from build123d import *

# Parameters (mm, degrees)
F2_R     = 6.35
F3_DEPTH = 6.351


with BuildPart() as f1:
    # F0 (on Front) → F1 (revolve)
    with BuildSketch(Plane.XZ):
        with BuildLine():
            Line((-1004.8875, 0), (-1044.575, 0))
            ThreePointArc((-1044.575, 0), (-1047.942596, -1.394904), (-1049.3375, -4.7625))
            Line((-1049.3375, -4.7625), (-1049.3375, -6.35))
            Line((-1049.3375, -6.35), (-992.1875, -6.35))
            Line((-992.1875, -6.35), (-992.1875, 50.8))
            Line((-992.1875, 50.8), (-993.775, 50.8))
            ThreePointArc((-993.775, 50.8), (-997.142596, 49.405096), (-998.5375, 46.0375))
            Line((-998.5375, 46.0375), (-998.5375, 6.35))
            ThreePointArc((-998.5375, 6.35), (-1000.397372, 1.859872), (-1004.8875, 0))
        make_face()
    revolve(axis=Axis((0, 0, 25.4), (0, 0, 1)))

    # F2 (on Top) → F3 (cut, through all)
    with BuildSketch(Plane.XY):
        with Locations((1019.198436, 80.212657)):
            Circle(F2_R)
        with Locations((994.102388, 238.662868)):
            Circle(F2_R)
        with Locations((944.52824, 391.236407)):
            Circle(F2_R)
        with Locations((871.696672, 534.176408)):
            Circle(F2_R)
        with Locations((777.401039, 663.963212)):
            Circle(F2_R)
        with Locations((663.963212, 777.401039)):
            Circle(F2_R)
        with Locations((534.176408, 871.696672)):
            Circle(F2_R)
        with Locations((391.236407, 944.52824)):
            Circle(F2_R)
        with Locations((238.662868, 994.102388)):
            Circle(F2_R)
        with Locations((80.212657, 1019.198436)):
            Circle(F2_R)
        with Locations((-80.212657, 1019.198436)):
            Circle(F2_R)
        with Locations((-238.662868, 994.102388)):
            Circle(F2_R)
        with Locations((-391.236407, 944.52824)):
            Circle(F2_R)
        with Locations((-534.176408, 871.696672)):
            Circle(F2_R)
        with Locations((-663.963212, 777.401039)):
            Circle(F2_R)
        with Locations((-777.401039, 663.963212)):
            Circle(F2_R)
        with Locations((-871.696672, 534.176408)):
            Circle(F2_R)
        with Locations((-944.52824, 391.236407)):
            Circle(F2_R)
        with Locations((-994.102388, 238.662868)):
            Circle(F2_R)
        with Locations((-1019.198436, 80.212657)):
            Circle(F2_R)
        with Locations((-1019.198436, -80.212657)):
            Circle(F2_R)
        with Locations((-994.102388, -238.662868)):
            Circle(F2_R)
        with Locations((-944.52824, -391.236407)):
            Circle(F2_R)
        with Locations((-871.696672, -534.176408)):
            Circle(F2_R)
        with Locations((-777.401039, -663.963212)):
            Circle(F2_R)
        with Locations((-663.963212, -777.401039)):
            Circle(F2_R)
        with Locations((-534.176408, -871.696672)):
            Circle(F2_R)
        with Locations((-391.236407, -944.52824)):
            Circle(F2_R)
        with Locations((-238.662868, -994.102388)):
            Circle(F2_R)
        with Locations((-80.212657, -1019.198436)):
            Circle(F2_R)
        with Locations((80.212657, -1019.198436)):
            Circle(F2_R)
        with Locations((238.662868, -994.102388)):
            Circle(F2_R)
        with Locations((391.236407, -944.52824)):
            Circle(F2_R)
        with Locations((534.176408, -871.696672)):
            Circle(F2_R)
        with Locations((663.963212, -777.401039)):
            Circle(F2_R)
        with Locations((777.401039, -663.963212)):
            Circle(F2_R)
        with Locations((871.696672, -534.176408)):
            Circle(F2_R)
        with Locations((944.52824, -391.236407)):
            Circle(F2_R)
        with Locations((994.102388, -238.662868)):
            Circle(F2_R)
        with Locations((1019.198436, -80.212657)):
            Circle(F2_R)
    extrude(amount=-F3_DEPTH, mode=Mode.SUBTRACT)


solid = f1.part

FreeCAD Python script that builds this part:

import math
import FreeCAD as App
import Part
import Sketcher

V = App.Vector
Q = App.Units.Quantity

doc = App.newDocument("Part")
body = doc.addObject("PartDesign::Body", "Body")

# Sketch on XZ plane
sketch1 = doc.addObject("Sketcher::SketchObject", "Sketch")
body.addObject(sketch1)
sketch1.AttachmentSupport = (doc.XZ_Plane, [""])
sketch1.MapMode = "FlatFace"
sketch1.addGeometry(Part.LineSegment(V(-1004.9, 0, 0), V(-1044.6, 0, 0)), False)
sketch1.addGeometry(Part.ArcOfCircle(Part.Circle(V(-1044.6, -4.8, 0), V(0, 0, 1), 4.8), math.radians(90), math.radians(180)), False)
sketch1.addGeometry(Part.LineSegment(V(-1049.3, -4.8, 0), V(-1049.3, -6.3, 0)), False)
sketch1.addGeometry(Part.LineSegment(V(-1049.3, -6.3, 0), V(-992.2, -6.3, 0)), False)
sketch1.addGeometry(Part.LineSegment(V(-992.2, -6.3, 0), V(-992.2, 50.8, 0)), False)
sketch1.addGeometry(Part.LineSegment(V(-992.2, 50.8, 0), V(-993.8, 50.8, 0)), False)
sketch1.addGeometry(Part.ArcOfCircle(Part.Circle(V(-993.8, 46, 0), V(0, 0, 1), 4.8), math.radians(90), math.radians(180)), False)
sketch1.addGeometry(Part.LineSegment(V(-998.5, 46, 0), V(-998.5, 6.3, 0)), False)
sketch1.addGeometry(Part.ArcOfCircle(Part.Circle(V(-1004.9, 6.4, 0), V(0, 0, 1), 6.4), math.radians(-90), math.radians(0)), False)
sketch1.addConstraint(Sketcher.Constraint("Tangent", 0, 2, 1, 1))
sketch1.addConstraint(Sketcher.Constraint("Tangent", 1, 2, 2, 1))
sketch1.addConstraint(Sketcher.Constraint("Coincident", 2, 2, 3, 1))
sketch1.addConstraint(Sketcher.Constraint("Coincident", 3, 2, 4, 1))
sketch1.addConstraint(Sketcher.Constraint("Coincident", 4, 2, 5, 1))
sketch1.addConstraint(Sketcher.Constraint("Tangent", 5, 2, 6, 1))
sketch1.addConstraint(Sketcher.Constraint("Tangent", 6, 2, 7, 1))
sketch1.addConstraint(Sketcher.Constraint("Tangent", 7, 2, 8, 2))
sketch1.addConstraint(Sketcher.Constraint("Tangent", 8, 1, 0, 1))
sketch1.addConstraint(Sketcher.Constraint("Horizontal", 0))
sketch1.addConstraint(Sketcher.Constraint("Vertical", 2))
sketch1.addConstraint(Sketcher.Constraint("Horizontal", 3))
sketch1.addConstraint(Sketcher.Constraint("Vertical", 4))
sketch1.addConstraint(Sketcher.Constraint("Horizontal", 5))
sketch1.addConstraint(Sketcher.Constraint("Vertical", 7))
sketch1.addConstraint(Sketcher.Constraint("Equal", 1, 6))
sketch1.addConstraint(Sketcher.Constraint("PointOnObject", 0, 2, -1))
sketch1.addConstraint(Sketcher.Constraint("Equal", 5, 2))
sketch1.addConstraint(Sketcher.Constraint("Equal", 3, 4))
sketch1.addConstraint(Sketcher.Constraint("Radius", 8, Q("0.25 in")))
sketch1.addConstraint(Sketcher.Constraint("DistanceY", -1, 1, 4, 2, Q("2 in")))
sketch1.addConstraint(Sketcher.Constraint("Radius", 1, Q("0.1875 in")))
sketch1.addConstraint(Sketcher.Constraint("DistanceX", 3, 1, 3, 2, Q("2.25 in")))
sketch1.addConstraint(Sketcher.Constraint("DistanceX", 1, 3, -1, 1, Q("41.125 in")))
revolution = doc.addObject("PartDesign::Revolution", "Revolution")
body.addObject(revolution)
revolution.Profile = sketch1
revolution.ReferenceAxis = (sketch1, ["V_Axis"])
revolution.Angle = 360

# Sketch on XY plane
sketch2 = doc.addObject("Sketcher::SketchObject", "Sketch001")
body.addObject(sketch2)
sketch2.AttachmentSupport = (doc.XY_Plane, [""])
sketch2.MapMode = "FlatFace"
sketch2.addGeometry(Part.Circle(V(1019, 80, 0), V(0, 0, 1), 6), False)
sketch2.addGeometry(Part.Circle(V(994, 239, 0), V(0, 0, 1), 6), False)
sketch2.addGeometry(Part.Circle(V(945, 391, 0), V(0, 0, 1), 6), False)
sketch2.addGeometry(Part.Circle(V(872, 534, 0), V(0, 0, 1), 6), False)
sketch2.addGeometry(Part.Circle(V(777, 664, 0), V(0, 0, 1), 6), False)
sketch2.addGeometry(Part.Circle(V(664, 777, 0), V(0, 0, 1), 6), False)
sketch2.addGeometry(Part.Circle(V(534, 872, 0), V(0, 0, 1), 6), False)
sketch2.addGeometry(Part.Circle(V(391, 945, 0), V(0, 0, 1), 6), False)
sketch2.addGeometry(Part.Circle(V(239, 994, 0), V(0, 0, 1), 6), False)
sketch2.addGeometry(Part.Circle(V(80, 1019, 0), V(0, 0, 1), 6), False)
sketch2.addGeometry(Part.Circle(V(-80, 1019, 0), V(0, 0, 1), 6), False)
sketch2.addGeometry(Part.Circle(V(-239, 994, 0), V(0, 0, 1), 6), False)
sketch2.addGeometry(Part.Circle(V(-391, 945, 0), V(0, 0, 1), 6), False)
sketch2.addGeometry(Part.Circle(V(-534, 872, 0), V(0, 0, 1), 6), False)
sketch2.addGeometry(Part.Circle(V(-664, 777, 0), V(0, 0, 1), 6), False)
sketch2.addGeometry(Part.Circle(V(-777, 664, 0), V(0, 0, 1), 6), False)
sketch2.addGeometry(Part.Circle(V(-872, 534, 0), V(0, 0, 1), 6), False)
sketch2.addGeometry(Part.Circle(V(-945, 391, 0), V(0, 0, 1), 6), False)
sketch2.addGeometry(Part.Circle(V(-994, 239, 0), V(0, 0, 1), 6), False)
sketch2.addGeometry(Part.Circle(V(-1019, 80, 0), V(0, 0, 1), 6), False)
sketch2.addGeometry(Part.Circle(V(-1019, -80, 0), V(0, 0, 1), 6), False)
sketch2.addGeometry(Part.Circle(V(-994, -239, 0), V(0, 0, 1), 6), False)
sketch2.addGeometry(Part.Circle(V(-945, -391, 0), V(0, 0, 1), 6), False)
sketch2.addGeometry(Part.Circle(V(-872, -534, 0), V(0, 0, 1), 6), False)
sketch2.addGeometry(Part.Circle(V(-777, -664, 0), V(0, 0, 1), 6), False)
sketch2.addGeometry(Part.Circle(V(-664, -777, 0), V(0, 0, 1), 6), False)
sketch2.addGeometry(Part.Circle(V(-534, -872, 0), V(0, 0, 1), 6), False)
sketch2.addGeometry(Part.Circle(V(-391, -945, 0), V(0, 0, 1), 6), False)
sketch2.addGeometry(Part.Circle(V(-239, -994, 0), V(0, 0, 1), 6), False)
sketch2.addGeometry(Part.Circle(V(-80, -1019, 0), V(0, 0, 1), 6), False)
sketch2.addGeometry(Part.Circle(V(80, -1019, 0), V(0, 0, 1), 6), False)
sketch2.addGeometry(Part.Circle(V(239, -994, 0), V(0, 0, 1), 6), False)
sketch2.addGeometry(Part.Circle(V(391, -945, 0), V(0, 0, 1), 6), False)
sketch2.addGeometry(Part.Circle(V(534, -872, 0), V(0, 0, 1), 6), False)
sketch2.addGeometry(Part.Circle(V(664, -777, 0), V(0, 0, 1), 6), False)
sketch2.addGeometry(Part.Circle(V(777, -664, 0), V(0, 0, 1), 6), False)
sketch2.addGeometry(Part.Circle(V(872, -534, 0), V(0, 0, 1), 6), False)
sketch2.addGeometry(Part.Circle(V(945, -391, 0), V(0, 0, 1), 6), False)
sketch2.addGeometry(Part.Circle(V(994, -239, 0), V(0, 0, 1), 6), False)
sketch2.addGeometry(Part.Circle(V(1019, -80, 0), V(0, 0, 1), 6), False)
sketch2.addConstraint(Sketcher.Constraint("Equal", 0, 1))
sketch2.addConstraint(Sketcher.Constraint("Equal", 1, 2))
sketch2.addConstraint(Sketcher.Constraint("Equal", 2, 3))
sketch2.addConstraint(Sketcher.Constraint("Equal", 3, 4))
sketch2.addConstraint(Sketcher.Constraint("Equal", 4, 5))
sketch2.addConstraint(Sketcher.Constraint("Equal", 5, 6))
sketch2.addConstraint(Sketcher.Constraint("Equal", 6, 7))
sketch2.addConstraint(Sketcher.Constraint("Equal", 7, 8))
sketch2.addConstraint(Sketcher.Constraint("Equal", 8, 9))
sketch2.addConstraint(Sketcher.Constraint("Equal", 9, 10))
sketch2.addConstraint(Sketcher.Constraint("Equal", 10, 11))
sketch2.addConstraint(Sketcher.Constraint("Equal", 11, 12))
sketch2.addConstraint(Sketcher.Constraint("Equal", 12, 13))
sketch2.addConstraint(Sketcher.Constraint("Equal", 13, 14))
sketch2.addConstraint(Sketcher.Constraint("Equal", 14, 15))
sketch2.addConstraint(Sketcher.Constraint("Equal", 15, 16))
sketch2.addConstraint(Sketcher.Constraint("Equal", 16, 17))
sketch2.addConstraint(Sketcher.Constraint("Equal", 17, 18))
sketch2.addConstraint(Sketcher.Constraint("Equal", 18, 19))
sketch2.addConstraint(Sketcher.Constraint("Equal", 19, 20))
sketch2.addConstraint(Sketcher.Constraint("Equal", 20, 21))
sketch2.addConstraint(Sketcher.Constraint("Equal", 21, 22))
sketch2.addConstraint(Sketcher.Constraint("Equal", 22, 23))
sketch2.addConstraint(Sketcher.Constraint("Equal", 23, 24))
sketch2.addConstraint(Sketcher.Constraint("Equal", 24, 25))
sketch2.addConstraint(Sketcher.Constraint("Equal", 25, 26))
sketch2.addConstraint(Sketcher.Constraint("Equal", 26, 27))
sketch2.addConstraint(Sketcher.Constraint("Equal", 27, 28))
sketch2.addConstraint(Sketcher.Constraint("Equal", 28, 29))
sketch2.addConstraint(Sketcher.Constraint("Equal", 29, 30))
sketch2.addConstraint(Sketcher.Constraint("Equal", 30, 31))
sketch2.addConstraint(Sketcher.Constraint("Equal", 31, 32))
sketch2.addConstraint(Sketcher.Constraint("Equal", 32, 33))
sketch2.addConstraint(Sketcher.Constraint("Equal", 33, 34))
sketch2.addConstraint(Sketcher.Constraint("Equal", 34, 35))
sketch2.addConstraint(Sketcher.Constraint("Equal", 35, 36))
sketch2.addConstraint(Sketcher.Constraint("Equal", 36, 37))
sketch2.addConstraint(Sketcher.Constraint("Equal", 37, 38))
sketch2.addConstraint(Sketcher.Constraint("Equal", 38, 39))
sketch2.addConstraint(Sketcher.Constraint("Symmetric", 0, 3, 20, 3, -1, 1))
sketch2.addConstraint(Sketcher.Constraint("Symmetric", 1, 3, 21, 3, -1, 1))
sketch2.addConstraint(Sketcher.Constraint("Symmetric", 2, 3, 22, 3, -1, 1))
sketch2.addConstraint(Sketcher.Constraint("Symmetric", 3, 3, 23, 3, -1, 1))
sketch2.addConstraint(Sketcher.Constraint("Symmetric", 4, 3, 24, 3, -1, 1))
sketch2.addConstraint(Sketcher.Constraint("Symmetric", 5, 3, 25, 3, -1, 1))
sketch2.addConstraint(Sketcher.Constraint("Symmetric", 6, 3, 26, 3, -1, 1))
sketch2.addConstraint(Sketcher.Constraint("Symmetric", 7, 3, 27, 3, -1, 1))
sketch2.addConstraint(Sketcher.Constraint("Symmetric", 8, 3, 28, 3, -1, 1))
sketch2.addConstraint(Sketcher.Constraint("Symmetric", 9, 3, 29, 3, -1, 1))
sketch2.addConstraint(Sketcher.Constraint("Symmetric", 10, 3, 30, 3, -1, 1))
sketch2.addConstraint(Sketcher.Constraint("Symmetric", 11, 3, 31, 3, -1, 1))
sketch2.addConstraint(Sketcher.Constraint("Symmetric", 12, 3, 32, 3, -1, 1))
sketch2.addConstraint(Sketcher.Constraint("Symmetric", 13, 3, 33, 3, -1, 1))
sketch2.addConstraint(Sketcher.Constraint("Symmetric", 14, 3, 34, 3, -1, 1))
sketch2.addConstraint(Sketcher.Constraint("Symmetric", 15, 3, 35, 3, -1, 1))
sketch2.addConstraint(Sketcher.Constraint("Symmetric", 16, 3, 36, 3, -1, 1))
sketch2.addConstraint(Sketcher.Constraint("Symmetric", 17, 3, 37, 3, -1, 1))
sketch2.addConstraint(Sketcher.Constraint("Symmetric", 18, 3, 38, 3, -1, 1))
sketch2.addConstraint(Sketcher.Constraint("Symmetric", 19, 3, 39, 3, -1, 1))
sketch2.addConstraint(Sketcher.Constraint("Symmetric", 9, 3, 10, 3, -2))
sketch2.addConstraint(Sketcher.Constraint("Symmetric", 8, 3, 11, 3, -2))
sketch2.addConstraint(Sketcher.Constraint("Symmetric", 7, 3, 12, 3, -2))
sketch2.addConstraint(Sketcher.Constraint("Symmetric", 6, 3, 13, 3, -2))
sketch2.addConstraint(Sketcher.Constraint("Symmetric", 5, 3, 14, 3, -2))
sketch2.addConstraint(Sketcher.Constraint("Symmetric", 4, 3, 15, 3, -2))
sketch2.addConstraint(Sketcher.Constraint("Symmetric", 3, 3, 16, 3, -2))
sketch2.addConstraint(Sketcher.Constraint("Symmetric", 2, 3, 17, 3, -2))
sketch2.addConstraint(Sketcher.Constraint("Symmetric", 1, 3, 18, 3, -2))
sketch2.addConstraint(Sketcher.Constraint("Symmetric", 0, 3, 19, 3, -2))
sketch2.addConstraint(Sketcher.Constraint("Diameter", 0, Q("0.5 in")))
sketch2.addConstraint(Sketcher.Constraint("DistanceY", 2, 3, 3, 3, Q("142.940001 mm")))
sketch2.addConstraint(Sketcher.Constraint("DistanceX", 4, 3, 2, 3, Q("167.127201 mm")))
sketch2.addConstraint(Sketcher.Constraint("DistanceX", 7, 3, 6, 3, Q("142.940001 mm")))
sketch2.addConstraint(Sketcher.Constraint("DistanceY", 5, 3, 7, 3, Q("167.127201 mm")))
sketch2.addConstraint(Sketcher.Constraint("DistanceX", -1, 1, 1, 3, Q("994.102388 mm")))
sketch2.addConstraint(Sketcher.Constraint("DistanceY", -1, 1, 1, 3, Q("238.662868 mm")))
sketch2.addConstraint(Sketcher.Constraint("DistanceX", -1, 1, 2, 3, Q("944.52824 mm")))
sketch2.addConstraint(Sketcher.Constraint("DistanceX", -1, 1, 3, 3, Q("871.696672 mm")))
sketch2.addConstraint(Sketcher.Constraint("DistanceY", -1, 1, 3, 3, Q("534.176408 mm")))
sketch2.addConstraint(Sketcher.Constraint("DistanceY", -1, 1, 4, 3, Q("663.963212 mm")))
sketch2.addConstraint(Sketcher.Constraint("DistanceX", -1, 1, 5, 3, Q("663.963212 mm")))
sketch2.addConstraint(Sketcher.Constraint("DistanceY", -1, 1, 5, 3, Q("777.401039 mm")))
sketch2.addConstraint(Sketcher.Constraint("DistanceX", -1, 1, 6, 3, Q("534.176408 mm")))
sketch2.addConstraint(Sketcher.Constraint("DistanceY", -1, 1, 6, 3, Q("871.696672 mm")))
sketch2.addConstraint(Sketcher.Constraint("DistanceX", -1, 1, 8, 3, Q("238.662868 mm")))
sketch2.addConstraint(Sketcher.Constraint("DistanceY", -1, 1, 8, 3, Q("994.102388 mm")))
sketch2.addConstraint(Sketcher.Constraint("DistanceY", 0, 3, 1, 3, Q("158.450211 mm")))
sketch2.addConstraint(Sketcher.Constraint("DistanceX", 9, 3, 8, 3, Q("158.450211 mm")))
sketch2.addConstraint(Sketcher.Constraint("DistanceX", -1, 1, 0, 3, Q("1019.198436 mm")))
sketch2.addConstraint(Sketcher.Constraint("DistanceY", -1, 1, 9, 3, Q("1019.198436 mm")))
pocket1 = doc.addObject("PartDesign::Pocket", "Pocket")
body.addObject(pocket1)
pocket1.Profile = sketch2
pocket1.Type = "ThroughAll"

doc.recompute()
